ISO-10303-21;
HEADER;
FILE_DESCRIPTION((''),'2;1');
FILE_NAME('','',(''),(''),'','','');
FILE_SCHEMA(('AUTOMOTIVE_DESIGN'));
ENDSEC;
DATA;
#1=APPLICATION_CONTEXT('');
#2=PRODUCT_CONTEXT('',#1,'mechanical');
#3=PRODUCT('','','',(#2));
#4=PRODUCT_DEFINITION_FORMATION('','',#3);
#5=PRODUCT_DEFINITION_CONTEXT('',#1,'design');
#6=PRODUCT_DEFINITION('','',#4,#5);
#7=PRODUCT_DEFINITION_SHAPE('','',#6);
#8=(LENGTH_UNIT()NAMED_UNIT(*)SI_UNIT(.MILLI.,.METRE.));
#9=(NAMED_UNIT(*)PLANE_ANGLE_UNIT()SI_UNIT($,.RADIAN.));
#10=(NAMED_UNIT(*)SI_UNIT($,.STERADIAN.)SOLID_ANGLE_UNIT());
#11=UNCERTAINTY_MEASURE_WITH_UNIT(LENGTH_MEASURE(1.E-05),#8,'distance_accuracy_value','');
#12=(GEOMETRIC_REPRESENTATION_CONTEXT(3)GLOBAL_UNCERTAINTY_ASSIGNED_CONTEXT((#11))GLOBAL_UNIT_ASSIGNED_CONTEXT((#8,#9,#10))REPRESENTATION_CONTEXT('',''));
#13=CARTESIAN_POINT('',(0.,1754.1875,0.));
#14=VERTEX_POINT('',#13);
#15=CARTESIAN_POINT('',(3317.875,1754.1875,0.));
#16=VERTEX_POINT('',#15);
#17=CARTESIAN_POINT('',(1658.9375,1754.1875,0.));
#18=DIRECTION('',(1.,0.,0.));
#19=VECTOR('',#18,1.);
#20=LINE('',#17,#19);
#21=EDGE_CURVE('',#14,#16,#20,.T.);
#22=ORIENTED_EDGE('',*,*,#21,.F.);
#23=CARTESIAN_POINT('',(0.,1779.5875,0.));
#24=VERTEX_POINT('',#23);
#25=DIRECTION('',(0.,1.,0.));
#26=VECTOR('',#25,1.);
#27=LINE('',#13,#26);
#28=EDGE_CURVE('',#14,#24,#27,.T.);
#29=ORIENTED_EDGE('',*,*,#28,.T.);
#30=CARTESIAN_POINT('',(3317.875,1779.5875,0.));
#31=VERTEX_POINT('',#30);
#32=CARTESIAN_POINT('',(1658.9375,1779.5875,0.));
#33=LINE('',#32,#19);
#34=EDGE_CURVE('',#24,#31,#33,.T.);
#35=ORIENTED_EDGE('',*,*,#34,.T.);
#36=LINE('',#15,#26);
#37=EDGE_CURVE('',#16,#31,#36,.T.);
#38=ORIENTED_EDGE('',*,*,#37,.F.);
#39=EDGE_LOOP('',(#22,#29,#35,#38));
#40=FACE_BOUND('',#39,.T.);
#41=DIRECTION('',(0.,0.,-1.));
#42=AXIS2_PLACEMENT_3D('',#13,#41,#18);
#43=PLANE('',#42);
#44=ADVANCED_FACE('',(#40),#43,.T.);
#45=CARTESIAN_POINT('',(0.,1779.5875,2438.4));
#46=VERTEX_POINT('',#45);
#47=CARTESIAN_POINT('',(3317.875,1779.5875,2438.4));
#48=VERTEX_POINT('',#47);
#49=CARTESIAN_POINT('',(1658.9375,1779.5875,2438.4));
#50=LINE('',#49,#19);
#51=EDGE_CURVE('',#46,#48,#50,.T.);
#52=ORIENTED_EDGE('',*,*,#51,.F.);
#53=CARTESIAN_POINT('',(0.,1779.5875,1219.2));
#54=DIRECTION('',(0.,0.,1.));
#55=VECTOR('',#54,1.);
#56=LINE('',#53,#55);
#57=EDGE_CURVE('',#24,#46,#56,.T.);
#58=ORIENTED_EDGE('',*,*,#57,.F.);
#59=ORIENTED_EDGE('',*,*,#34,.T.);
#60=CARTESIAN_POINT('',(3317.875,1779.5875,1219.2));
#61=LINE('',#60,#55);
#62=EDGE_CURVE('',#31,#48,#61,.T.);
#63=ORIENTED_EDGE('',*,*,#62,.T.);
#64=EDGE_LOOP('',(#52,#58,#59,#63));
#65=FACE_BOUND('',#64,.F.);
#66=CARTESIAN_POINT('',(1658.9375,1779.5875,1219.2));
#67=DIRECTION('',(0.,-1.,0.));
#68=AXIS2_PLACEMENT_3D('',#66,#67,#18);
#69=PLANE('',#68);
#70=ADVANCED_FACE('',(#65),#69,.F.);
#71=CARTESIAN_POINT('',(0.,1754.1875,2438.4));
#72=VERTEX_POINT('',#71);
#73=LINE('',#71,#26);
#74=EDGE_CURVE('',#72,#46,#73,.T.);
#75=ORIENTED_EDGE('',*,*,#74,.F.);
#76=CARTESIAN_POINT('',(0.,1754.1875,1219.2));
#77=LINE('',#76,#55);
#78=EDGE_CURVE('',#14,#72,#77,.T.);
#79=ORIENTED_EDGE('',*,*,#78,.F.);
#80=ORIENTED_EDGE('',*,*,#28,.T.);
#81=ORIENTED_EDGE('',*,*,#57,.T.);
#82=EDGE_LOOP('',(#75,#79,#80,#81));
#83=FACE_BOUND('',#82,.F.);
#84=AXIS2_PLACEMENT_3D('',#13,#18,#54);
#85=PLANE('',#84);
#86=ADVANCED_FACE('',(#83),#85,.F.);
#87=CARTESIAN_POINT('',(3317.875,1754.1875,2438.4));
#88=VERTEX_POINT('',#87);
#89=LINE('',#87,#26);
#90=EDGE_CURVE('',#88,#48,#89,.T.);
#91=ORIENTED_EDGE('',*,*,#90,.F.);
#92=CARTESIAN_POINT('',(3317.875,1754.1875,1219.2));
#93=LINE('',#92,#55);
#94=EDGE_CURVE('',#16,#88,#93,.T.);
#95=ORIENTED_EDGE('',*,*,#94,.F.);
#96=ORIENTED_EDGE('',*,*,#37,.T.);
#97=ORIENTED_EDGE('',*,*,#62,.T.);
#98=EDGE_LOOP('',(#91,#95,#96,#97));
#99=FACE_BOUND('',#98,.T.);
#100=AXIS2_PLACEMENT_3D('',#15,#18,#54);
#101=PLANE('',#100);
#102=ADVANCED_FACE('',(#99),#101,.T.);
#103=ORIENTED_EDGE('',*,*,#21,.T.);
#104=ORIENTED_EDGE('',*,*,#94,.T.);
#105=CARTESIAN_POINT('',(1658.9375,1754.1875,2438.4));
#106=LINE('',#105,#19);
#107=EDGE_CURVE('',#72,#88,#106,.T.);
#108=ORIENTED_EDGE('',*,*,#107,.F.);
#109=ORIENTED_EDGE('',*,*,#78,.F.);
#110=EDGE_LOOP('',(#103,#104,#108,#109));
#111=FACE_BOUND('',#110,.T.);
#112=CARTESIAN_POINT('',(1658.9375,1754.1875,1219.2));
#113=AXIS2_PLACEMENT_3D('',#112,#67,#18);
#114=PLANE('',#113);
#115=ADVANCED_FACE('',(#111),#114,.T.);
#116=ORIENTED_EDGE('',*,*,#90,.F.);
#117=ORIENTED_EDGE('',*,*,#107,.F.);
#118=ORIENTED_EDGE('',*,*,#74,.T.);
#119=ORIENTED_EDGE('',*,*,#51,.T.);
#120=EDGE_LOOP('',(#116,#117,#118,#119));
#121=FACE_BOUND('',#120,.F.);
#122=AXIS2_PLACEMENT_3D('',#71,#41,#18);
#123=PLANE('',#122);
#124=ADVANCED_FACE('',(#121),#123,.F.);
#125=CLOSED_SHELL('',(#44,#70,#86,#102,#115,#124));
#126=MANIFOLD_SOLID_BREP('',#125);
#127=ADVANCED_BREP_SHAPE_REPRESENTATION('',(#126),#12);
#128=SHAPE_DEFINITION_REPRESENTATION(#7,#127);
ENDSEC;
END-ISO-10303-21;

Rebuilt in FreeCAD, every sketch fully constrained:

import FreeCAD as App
import Part
import Sketcher
from FreeCAD import Vector
Q = App.Units.Quantity


def add_polygon(sketch, points):
    """Adds a closed chain of lines whose ends are joined by coincident constraints."""
    first, n = sketch.GeometryCount, len(points)
    for a, b in zip(points, points[1:] + points[:1]):
        sketch.addGeometry(Part.LineSegment(App.Vector(*a, 0), App.Vector(*b, 0)), False)
    for i in range(n):
        sketch.addConstraint(Sketcher.Constraint("Coincident", first + i, 2, first + (i + 1) % n, 1))

doc = App.newDocument("Part")
params = doc.addObject("Spreadsheet::Sheet", "Params")
for row, (alias, value) in enumerate([
    ("sketch1_height", "96 in"),
    ("sketch1_width", "130.625 in"),
    ("pad1_length", "1 in"),
], start=1):
    params.set(f"A{row}", alias)
    params.set(f"B{row}", "=" + value)
    params.setAlias(f"B{row}", alias)

body = doc.addObject("PartDesign::Body", "Body")

# Sketch on XZ plane
sketch1 = body.newObject("Sketcher::SketchObject", "Sketch")
sketch1.AttachmentSupport = (doc.getObject("XZ_Plane"), [""])
sketch1.MapMode = "FlatFace"
sketch1.AttachmentOffset = App.Placement(Vector(0, 0, -69.0625 * 25.4), App.Rotation())
add_polygon(sketch1, [(0, 2438), (0, 0), (3318, 0), (3318, 2438)])  # lines 0-3
sketch1.addConstraint(Sketcher.Constraint("Vertical", 0))
sketch1.addConstraint(Sketcher.Constraint("Horizontal", 1))
sketch1.addConstraint(Sketcher.Constraint("Vertical", 2))
sketch1.addConstraint(Sketcher.Constraint("Horizontal", 3))
sketch1.addConstraint(Sketcher.Constraint("Coincident", 0, 2, -1, 1))
sketch1.addConstraint(Sketcher.Constraint("DistanceY", 0, 2, 0, 1, Q("96 in")))
sketch1.addConstraint(Sketcher.Constraint("DistanceX", 1, 1, 1, 2, Q("130.625 in")))
sketch1.setExpression("Constraints[9]", "Params.sketch1_height")
sketch1.setExpression("Constraints[10]", "Params.sketch1_width")
pad1 = body.newObject("PartDesign::Pad", "Pad")
pad1.Profile = sketch1
pad1.setExpression("Length", "Params.pad1_length")
pad1.Reversed = True

doc.recompute()
